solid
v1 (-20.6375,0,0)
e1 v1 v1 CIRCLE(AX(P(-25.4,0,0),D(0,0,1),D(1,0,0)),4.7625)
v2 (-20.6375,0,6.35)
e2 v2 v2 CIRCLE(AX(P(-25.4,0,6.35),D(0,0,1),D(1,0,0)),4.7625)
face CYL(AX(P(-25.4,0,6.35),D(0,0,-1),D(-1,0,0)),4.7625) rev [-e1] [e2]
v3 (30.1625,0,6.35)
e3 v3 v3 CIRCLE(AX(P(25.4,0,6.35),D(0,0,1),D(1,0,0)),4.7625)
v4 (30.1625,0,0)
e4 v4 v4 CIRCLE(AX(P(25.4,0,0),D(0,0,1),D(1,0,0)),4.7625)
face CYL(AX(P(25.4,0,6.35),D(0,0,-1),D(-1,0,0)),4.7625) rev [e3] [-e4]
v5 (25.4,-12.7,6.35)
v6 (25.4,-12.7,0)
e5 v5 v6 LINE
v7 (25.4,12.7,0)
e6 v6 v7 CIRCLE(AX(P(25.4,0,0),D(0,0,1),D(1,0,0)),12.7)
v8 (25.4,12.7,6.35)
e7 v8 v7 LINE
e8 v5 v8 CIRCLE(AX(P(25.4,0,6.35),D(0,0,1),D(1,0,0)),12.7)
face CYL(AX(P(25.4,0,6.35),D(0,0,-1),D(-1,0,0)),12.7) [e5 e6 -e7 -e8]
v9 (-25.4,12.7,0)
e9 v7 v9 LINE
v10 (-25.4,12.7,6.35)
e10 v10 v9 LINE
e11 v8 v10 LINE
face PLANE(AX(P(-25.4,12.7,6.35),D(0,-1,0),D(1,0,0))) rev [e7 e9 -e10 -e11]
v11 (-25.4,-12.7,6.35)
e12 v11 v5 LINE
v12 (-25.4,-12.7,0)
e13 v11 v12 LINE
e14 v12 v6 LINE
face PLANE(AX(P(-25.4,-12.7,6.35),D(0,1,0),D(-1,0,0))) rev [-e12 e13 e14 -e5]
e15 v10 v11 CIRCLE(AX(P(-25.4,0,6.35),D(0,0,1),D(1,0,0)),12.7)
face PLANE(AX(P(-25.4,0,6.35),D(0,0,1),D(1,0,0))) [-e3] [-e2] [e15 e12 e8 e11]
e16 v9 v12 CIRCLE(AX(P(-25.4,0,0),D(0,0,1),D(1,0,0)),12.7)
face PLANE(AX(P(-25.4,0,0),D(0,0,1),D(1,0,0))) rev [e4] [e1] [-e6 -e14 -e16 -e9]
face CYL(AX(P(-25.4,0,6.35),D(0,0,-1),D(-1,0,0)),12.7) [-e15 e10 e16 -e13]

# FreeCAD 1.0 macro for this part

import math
import FreeCAD as App
import Part
import Sketcher

V = App.Vector
Q = App.Units.Quantity

doc = App.newDocument("Part")
body = doc.addObject("PartDesign::Body", "Body")

# Sketch on XY plane
sketch1 = body.newObject("Sketcher::SketchObject", "Sketch")
sketch1.AttachmentSupport = (doc.getObject("XY_Plane"), [""])
sketch1.MapMode = "FlatFace"
sketch1.addGeometry([
    Part.LineSegment(V(25.4, 12.7, 0), V(-25.4, 12.7, 0)),  # 0
    Part.ArcOfCircle(Part.Circle(V(-25.4, 0, 0), V(0, 0, 1), 12.7), math.radians(90), math.radians(270)),  # 1
    Part.LineSegment(V(-25.4, -12.7, 0), V(25.4, -12.7, 0)),  # 2
    Part.ArcOfCircle(Part.Circle(V(25.4, 0, 0), V(0, 0, 1), 12.7), math.radians(-90), math.radians(90)),  # 3
    Part.Circle(V(25.4, 0, 0), V(0, 0, 1), 4.8),  # 4
    Part.Circle(V(-25.4, 0, 0), V(0, 0, 1), 4.8),  # 5
], False)
sketch1.addConstraint([
    Sketcher.Constraint("Tangent", 0, 2, 1, 1),
    Sketcher.Constraint("Tangent", 1, 2, 2, 1),
    Sketcher.Constraint("Tangent", 2, 2, 3, 1),
    Sketcher.Constraint("Tangent", 3, 2, 0, 1),
    Sketcher.Constraint("Horizontal", 0),
    Sketcher.Constraint("Horizontal", 2),
    Sketcher.Constraint("Coincident", 4, 3, 3, 3),
    Sketcher.Constraint("Coincident", 5, 3, 1, 3),
    Sketcher.Constraint("Equal", 4, 5),
    Sketcher.Constraint("Symmetric", 1, 3, 3, 3, -1, 1),
    Sketcher.Constraint("Radius", 1, Q("0.5 in")),
    Sketcher.Constraint("DistanceX", 0, 2, 0, 1, Q("2 in")),
    Sketcher.Constraint("Diameter", 4, Q("0.375 in")),
])
pad1 = body.newObject("PartDesign::Pad", "Pad")
pad1.Profile = sketch1
pad1.Length = Q("0.25 in")

doc.recompute()
